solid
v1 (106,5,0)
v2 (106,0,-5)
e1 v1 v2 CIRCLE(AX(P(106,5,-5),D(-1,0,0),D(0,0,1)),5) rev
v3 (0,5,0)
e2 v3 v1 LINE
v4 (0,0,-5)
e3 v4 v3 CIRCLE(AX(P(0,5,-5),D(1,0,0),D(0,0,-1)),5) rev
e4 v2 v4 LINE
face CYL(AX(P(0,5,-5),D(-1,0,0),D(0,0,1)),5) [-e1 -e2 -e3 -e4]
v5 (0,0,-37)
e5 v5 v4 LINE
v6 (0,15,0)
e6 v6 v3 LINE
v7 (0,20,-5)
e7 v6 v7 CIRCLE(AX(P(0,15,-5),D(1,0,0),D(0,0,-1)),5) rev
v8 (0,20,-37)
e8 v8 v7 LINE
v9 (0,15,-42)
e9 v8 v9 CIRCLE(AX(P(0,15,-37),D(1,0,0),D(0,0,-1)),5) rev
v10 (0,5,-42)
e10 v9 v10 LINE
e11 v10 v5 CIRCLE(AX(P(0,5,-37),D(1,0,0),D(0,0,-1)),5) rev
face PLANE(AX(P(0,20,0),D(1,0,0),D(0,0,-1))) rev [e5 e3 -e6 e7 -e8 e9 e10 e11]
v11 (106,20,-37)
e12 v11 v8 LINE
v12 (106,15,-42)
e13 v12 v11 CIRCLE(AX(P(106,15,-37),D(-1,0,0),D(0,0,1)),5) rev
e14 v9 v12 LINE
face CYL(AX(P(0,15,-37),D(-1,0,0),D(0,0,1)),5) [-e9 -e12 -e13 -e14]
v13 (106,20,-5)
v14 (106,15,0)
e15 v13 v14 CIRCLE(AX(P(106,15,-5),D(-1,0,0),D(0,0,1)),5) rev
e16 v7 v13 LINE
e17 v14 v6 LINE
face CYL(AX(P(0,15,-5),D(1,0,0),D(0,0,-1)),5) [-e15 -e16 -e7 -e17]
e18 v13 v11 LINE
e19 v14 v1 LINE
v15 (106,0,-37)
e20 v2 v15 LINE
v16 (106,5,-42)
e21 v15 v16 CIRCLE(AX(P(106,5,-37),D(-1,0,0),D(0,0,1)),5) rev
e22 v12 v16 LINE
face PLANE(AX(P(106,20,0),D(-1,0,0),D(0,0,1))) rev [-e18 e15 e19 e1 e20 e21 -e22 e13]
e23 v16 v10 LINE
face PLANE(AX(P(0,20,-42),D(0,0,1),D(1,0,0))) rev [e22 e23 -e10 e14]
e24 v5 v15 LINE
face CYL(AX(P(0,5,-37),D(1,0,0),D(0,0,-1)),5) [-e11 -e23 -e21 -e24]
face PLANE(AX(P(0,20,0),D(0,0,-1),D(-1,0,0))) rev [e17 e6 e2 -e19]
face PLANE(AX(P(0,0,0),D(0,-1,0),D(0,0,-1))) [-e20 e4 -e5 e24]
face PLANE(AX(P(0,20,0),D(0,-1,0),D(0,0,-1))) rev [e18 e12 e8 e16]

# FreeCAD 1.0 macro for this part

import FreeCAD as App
import Part
import Sketcher
from FreeCAD import Vector
Q = App.Units.Quantity


def edges_at(feature, points):
    """Names of the edges that pass closest to the given points."""
    edges = feature.Shape.Edges
    near = lambda p: min(range(len(edges)), key=lambda i: edges[i].distToShape(Part.Vertex(*p))[0])
    return sorted({f"Edge{near(p) + 1}" for p in points})


def add_polygon(sketch, points):
    """Adds a closed chain of lines whose ends are joined by coincident constraints."""
    first, n = sketch.GeometryCount, len(points)
    for a, b in zip(points, points[1:] + points[:1]):
        sketch.addGeometry(Part.LineSegment(App.Vector(*a, 0), App.Vector(*b, 0)), False)
    for i in range(n):
        sketch.addConstraint(Sketcher.Constraint("Coincident", first + i, 2, first + (i + 1) % n, 1))

doc = App.newDocument("Part")
body = doc.addObject("PartDesign::Body", "Body")

# Sketch on XZ plane
sketch1 = doc.addObject("Sketcher::SketchObject", "Sketch")
body.addObject(sketch1)
sketch1.AttachmentSupport = (doc.XZ_Plane, [""])
sketch1.MapMode = "FlatFace"
add_polygon(sketch1, [(0, -42), (0, 0), (106, 0), (106, -42)])  # lines 0-3
sketch1.addConstraint(Sketcher.Constraint("Vertical", 0))
sketch1.addConstraint(Sketcher.Constraint("Horizontal", 1))
sketch1.addConstraint(Sketcher.Constraint("Vertical", 2))
sketch1.addConstraint(Sketcher.Constraint("Horizontal", 3))
sketch1.addConstraint(Sketcher.Constraint("Coincident", 0, 2, -1, 1))
sketch1.addConstraint(Sketcher.Constraint("DistanceX", 1, 1, 1, 2, Q("106 mm")))
sketch1.addConstraint(Sketcher.Constraint("DistanceY", 0, 1, 0, 2, Q("42 mm")))
pad1 = doc.addObject("PartDesign::Pad", "Pad")
body.addObject(pad1)
pad1.Profile = sketch1
pad1.Length = 20
pad1.Reversed = True
doc.recompute()

fillet = doc.addObject("PartDesign::Fillet", "Fillet")
body.addObject(fillet)
fillet.Base = (pad1, edges_at(pad1, [
    (53, 20, -42),
    (53, 0, -42),
    (53, 0, 0),
    (53, 20, 0),
]))
fillet.Radius = 5

doc.recompute()
